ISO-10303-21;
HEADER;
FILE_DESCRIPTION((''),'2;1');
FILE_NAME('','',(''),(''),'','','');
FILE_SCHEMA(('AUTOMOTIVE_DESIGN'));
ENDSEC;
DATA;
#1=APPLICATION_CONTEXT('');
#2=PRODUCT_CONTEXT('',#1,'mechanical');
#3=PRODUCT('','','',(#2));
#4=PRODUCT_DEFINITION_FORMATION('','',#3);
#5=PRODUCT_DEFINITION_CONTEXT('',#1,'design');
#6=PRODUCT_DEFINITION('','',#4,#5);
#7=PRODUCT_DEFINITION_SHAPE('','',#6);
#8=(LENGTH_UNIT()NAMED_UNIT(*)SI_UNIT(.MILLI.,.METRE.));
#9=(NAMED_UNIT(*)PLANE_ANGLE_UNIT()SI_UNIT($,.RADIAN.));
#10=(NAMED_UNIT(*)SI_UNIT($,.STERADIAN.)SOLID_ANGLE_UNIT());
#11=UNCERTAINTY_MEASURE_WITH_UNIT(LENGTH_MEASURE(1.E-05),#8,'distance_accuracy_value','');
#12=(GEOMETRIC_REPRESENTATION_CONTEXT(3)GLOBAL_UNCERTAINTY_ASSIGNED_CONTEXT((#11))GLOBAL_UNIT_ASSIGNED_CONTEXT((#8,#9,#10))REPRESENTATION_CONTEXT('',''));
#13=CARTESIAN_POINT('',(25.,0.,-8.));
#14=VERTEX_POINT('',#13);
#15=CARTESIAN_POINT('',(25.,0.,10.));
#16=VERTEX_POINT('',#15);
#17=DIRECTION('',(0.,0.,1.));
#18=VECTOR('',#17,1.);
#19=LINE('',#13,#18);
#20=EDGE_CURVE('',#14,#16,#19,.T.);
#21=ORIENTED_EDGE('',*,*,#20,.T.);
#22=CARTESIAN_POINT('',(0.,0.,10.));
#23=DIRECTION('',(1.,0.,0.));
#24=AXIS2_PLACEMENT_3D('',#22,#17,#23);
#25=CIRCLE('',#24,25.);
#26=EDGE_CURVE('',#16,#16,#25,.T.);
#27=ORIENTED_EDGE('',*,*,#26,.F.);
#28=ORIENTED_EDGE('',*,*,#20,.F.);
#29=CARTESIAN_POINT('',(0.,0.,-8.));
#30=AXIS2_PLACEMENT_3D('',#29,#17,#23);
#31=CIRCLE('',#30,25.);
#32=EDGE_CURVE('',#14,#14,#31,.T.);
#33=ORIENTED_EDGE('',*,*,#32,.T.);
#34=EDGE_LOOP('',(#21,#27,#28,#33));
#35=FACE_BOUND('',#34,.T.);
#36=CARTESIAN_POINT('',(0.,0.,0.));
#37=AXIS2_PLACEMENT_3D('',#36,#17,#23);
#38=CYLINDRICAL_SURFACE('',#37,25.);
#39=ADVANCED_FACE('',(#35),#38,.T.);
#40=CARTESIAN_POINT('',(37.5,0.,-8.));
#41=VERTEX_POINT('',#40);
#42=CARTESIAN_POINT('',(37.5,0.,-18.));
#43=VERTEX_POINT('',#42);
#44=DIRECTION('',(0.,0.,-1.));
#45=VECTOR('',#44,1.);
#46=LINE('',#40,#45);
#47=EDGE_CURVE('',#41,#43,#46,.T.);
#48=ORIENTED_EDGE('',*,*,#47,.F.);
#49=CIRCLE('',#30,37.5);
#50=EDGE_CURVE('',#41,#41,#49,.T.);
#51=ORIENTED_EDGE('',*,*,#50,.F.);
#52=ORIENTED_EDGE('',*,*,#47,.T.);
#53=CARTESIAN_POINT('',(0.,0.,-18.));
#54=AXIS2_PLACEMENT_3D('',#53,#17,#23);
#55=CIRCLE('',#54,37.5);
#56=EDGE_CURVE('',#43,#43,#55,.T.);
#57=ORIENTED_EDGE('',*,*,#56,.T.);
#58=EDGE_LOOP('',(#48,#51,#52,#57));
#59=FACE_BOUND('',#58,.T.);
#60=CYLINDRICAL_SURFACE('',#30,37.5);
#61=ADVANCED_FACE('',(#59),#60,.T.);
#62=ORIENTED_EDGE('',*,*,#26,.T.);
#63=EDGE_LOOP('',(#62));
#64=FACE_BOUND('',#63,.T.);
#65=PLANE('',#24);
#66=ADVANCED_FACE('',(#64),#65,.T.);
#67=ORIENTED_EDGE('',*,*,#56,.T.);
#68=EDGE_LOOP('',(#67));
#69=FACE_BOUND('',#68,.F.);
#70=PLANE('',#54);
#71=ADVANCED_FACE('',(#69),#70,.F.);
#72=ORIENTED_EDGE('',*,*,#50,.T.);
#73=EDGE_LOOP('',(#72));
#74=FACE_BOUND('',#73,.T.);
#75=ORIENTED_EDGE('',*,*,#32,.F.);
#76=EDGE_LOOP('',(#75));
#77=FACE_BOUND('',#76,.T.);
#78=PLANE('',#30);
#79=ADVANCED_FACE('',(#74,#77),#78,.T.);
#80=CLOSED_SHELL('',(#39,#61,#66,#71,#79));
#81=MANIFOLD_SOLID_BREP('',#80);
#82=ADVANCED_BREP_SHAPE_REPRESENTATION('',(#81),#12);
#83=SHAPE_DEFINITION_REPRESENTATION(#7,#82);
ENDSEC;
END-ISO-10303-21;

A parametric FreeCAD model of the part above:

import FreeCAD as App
import Part
import Sketcher

V = App.Vector
Q = App.Units.Quantity

doc = App.newDocument("Part")
body = doc.addObject("PartDesign::Body", "Body")

# Sketch on XY plane
sketch1 = body.newObject("Sketcher::SketchObject", "Sketch")
sketch1.AttachmentSupport = (doc.getObject("XY_Plane"), [""])
sketch1.MapMode = "FlatFace"
sketch1.addGeometry(Part.Circle(V(0, 0, 0), V(0, 0, 1), 25), False)
sketch1.addConstraint([
    Sketcher.Constraint("Coincident", 0, 3, -1, 1),
    Sketcher.Constraint("Diameter", 0, Q("50 mm")),
])
pad1 = body.newObject("PartDesign::Pad", "Pad")
pad1.Profile = sketch1
pad1.Type = "TwoLengths"
pad1.Length = 10
pad1.Length2 = 8

# Sketch on XY plane
sketch2 = body.newObject("Sketcher::SketchObject", "Sketch001")
sketch2.AttachmentSupport = (doc.getObject("XY_Plane"), [""])
sketch2.MapMode = "FlatFace"
sketch2.AttachmentOffset = App.Placement(V(0, 0, -8), App.Rotation())
sketch2.addGeometry(Part.Circle(V(0, 0, 0), V(0, 0, 1), 37.5), False)
sketch2.addConstraint([
    Sketcher.Constraint("Coincident", 0, 3, -1, 1),
    Sketcher.Constraint("Diameter", 0, Q("75 mm")),
])
pad2 = body.newObject("PartDesign::Pad", "Pad001")
pad2.Profile = sketch2
pad2.Length = 10
pad2.Reversed = True

doc.recompute()
